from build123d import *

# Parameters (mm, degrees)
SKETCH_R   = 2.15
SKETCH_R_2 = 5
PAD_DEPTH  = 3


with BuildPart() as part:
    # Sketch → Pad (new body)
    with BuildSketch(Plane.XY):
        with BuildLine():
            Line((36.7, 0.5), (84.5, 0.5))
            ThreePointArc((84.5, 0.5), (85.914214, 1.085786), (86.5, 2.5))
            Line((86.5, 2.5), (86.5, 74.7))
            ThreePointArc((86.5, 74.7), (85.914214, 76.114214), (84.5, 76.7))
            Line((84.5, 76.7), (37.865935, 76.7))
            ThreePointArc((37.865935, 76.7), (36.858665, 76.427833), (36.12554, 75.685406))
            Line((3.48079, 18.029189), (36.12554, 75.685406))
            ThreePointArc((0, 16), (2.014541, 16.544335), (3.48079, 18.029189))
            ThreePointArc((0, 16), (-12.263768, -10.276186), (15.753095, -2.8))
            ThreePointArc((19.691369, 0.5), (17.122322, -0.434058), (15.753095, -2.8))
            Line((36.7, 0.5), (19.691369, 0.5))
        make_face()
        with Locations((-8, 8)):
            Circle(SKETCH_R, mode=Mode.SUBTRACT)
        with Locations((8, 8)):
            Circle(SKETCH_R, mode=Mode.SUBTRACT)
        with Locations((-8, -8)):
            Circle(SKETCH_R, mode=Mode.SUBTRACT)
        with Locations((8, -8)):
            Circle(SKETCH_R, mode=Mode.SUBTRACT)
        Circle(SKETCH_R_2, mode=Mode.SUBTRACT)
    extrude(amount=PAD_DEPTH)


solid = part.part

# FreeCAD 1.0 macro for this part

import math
import FreeCAD as App
import Part
import Sketcher
from FreeCAD import Vector
Q = App.Units.Quantity

doc = App.newDocument("Part")
params = doc.addObject("Spreadsheet::Sheet", "Params")
for row, (alias, value) in enumerate([
    ("sketch1_diameter", "10 mm"),
    ("sketch1_radius", "1.999999 mm"),
    ("sketch1_radius2", "4.000001 mm"),
    ("sketch1_radius3", "16 mm"),
    ("sketch1_diameter2", "4.3 mm"),
    ("pad1_length", "3 mm"),
], start=1):
    params.set(f"A{row}", alias)
    params.set(f"B{row}", "=" + value)
    params.setAlias(f"B{row}", alias)

body = doc.addObject("PartDesign::Body", "Body")

# Sketch on XY plane
sketch1 = body.newObject("Sketcher::SketchObject", "Sketch")
sketch1.AttachmentSupport = (doc.getObject("XY_Plane"), [""])
sketch1.MapMode = "FlatFace"
sketch1.addGeometry([
    Part.ArcOfCircle(Part.Circle(Vector(84.5, 2.5, 0), Vector(0, 0, 1), 2), math.radians(-90), math.radians(0)),  # 0
    Part.LineSegment(Vector(86.5, 2.5, 0), Vector(86.5, 74.7, 0)),  # 1
    Part.ArcOfCircle(Part.Circle(Vector(84.5, 74.7, 0), Vector(0, 0, 1), 2), math.radians(0), math.radians(90)),  # 2
    Part.LineSegment(Vector(84.5, 76.7, 0), Vector(37.9, 76.7, 0)),  # 3
    Part.ArcOfCircle(Part.Circle(Vector(37.9, 74.7, 0), Vector(0, 0, 1), 2), math.radians(90), math.radians(150)),  # 4
    Part.LineSegment(Vector(36.1, 75.7, 0), Vector(3.5, 18, 0)),  # 5
    Part.ArcOfCircle(Part.Circle(Vector(0, 20, 0), Vector(0, 0, 1), 4), math.radians(-90), math.radians(-30)),  # 6
    Part.ArcOfCircle(Part.Circle(Vector(0, 0, 0), Vector(0, 0, 1), 16), math.radians(90), math.radians(350)),  # 7
    Part.ArcOfCircle(Part.Circle(Vector(19.7, -3.5, 0), Vector(0, 0, 1), 4), math.radians(90), math.radians(170)),  # 8
    Part.LineSegment(Vector(19.7, 0.5, 0), Vector(84.5, 0.5, 0)),  # 9
    Part.Circle(Vector(-8, -8, 0), Vector(0, 0, 1), 2.1),  # 10
    Part.Circle(Vector(8, -8, 0), Vector(0, 0, 1), 2.1),  # 11
    Part.Circle(Vector(-8, 8, 0), Vector(0, 0, 1), 2.1),  # 12
    Part.Circle(Vector(0, 0, 0), Vector(0, 0, 1), 5),  # 13
    Part.Circle(Vector(8, 8, 0), Vector(0, 0, 1), 2.1),  # 14
], False)
sketch1.addConstraint([
    Sketcher.Constraint("Tangent", 0, 2, 1, 1),
    Sketcher.Constraint("Tangent", 1, 2, 2, 1),
    Sketcher.Constraint("Tangent", 2, 2, 3, 1),
    Sketcher.Constraint("Tangent", 3, 2, 4, 1),
    Sketcher.Constraint("Tangent", 4, 2, 5, 1),
    Sketcher.Constraint("Tangent", 5, 2, 6, 2),
    Sketcher.Constraint("Tangent", 6, 1, 7, 1),
    Sketcher.Constraint("Tangent", 7, 2, 8, 2),
    Sketcher.Constraint("Tangent", 8, 1, 9, 1),
    Sketcher.Constraint("Tangent", 9, 2, 0, 1),
    Sketcher.Constraint("Vertical", 1),
    Sketcher.Constraint("Horizontal", 3),
    Sketcher.Constraint("Horizontal", 9),
    Sketcher.Constraint("Coincident", 7, 3, -1, 1),
    Sketcher.Constraint("Coincident", 13, 3, -1, 1),
    Sketcher.Constraint("Equal", 0, 2),
    Sketcher.Constraint("Equal", 2, 4),
    Sketcher.Constraint("Equal", 6, 8),
    Sketcher.Constraint("Equal", 10, 11),
    Sketcher.Constraint("Equal", 11, 12),
    Sketcher.Constraint("Equal", 12, 14),
    Sketcher.Constraint("Symmetric", 11, 3, 12, 3, -1, 1),
    Sketcher.Constraint("Symmetric", 10, 3, 14, 3, -1, 1),
    Sketcher.Constraint("Symmetric", 10, 3, 11, 3, -2),
    Sketcher.Constraint("PointOnObject", 6, 3, -2),
    Sketcher.Constraint("Diameter", 13, Q("10 mm")),
    Sketcher.Constraint("Radius", 0, Q("1.999999 mm")),
    Sketcher.Constraint("Radius", 6, Q("4.000001 mm")),
    Sketcher.Constraint("Radius", 7, Q("16 mm")),
    Sketcher.Constraint("Diameter", 10, Q("4.3 mm")),
    Sketcher.Constraint("DistanceY", 1, 1, 1, 2, Q("72.2 mm")),
    Sketcher.Constraint("DistanceX", 10, 3, -1, 1, Q("8 mm")),
    Sketcher.Constraint("DistanceY", 10, 3, -1, 1, Q("8 mm")),
    Sketcher.Constraint("DistanceX", -1, 1, 0, 3, Q("84.500001 mm")),
    Sketcher.Constraint("DistanceY", -1, 1, 0, 3, Q("2.499999 mm")),
    Sketcher.Constraint("DistanceX", 3, 2, 3, 1, Q("46.634065 mm")),
])
sketch1.setExpression("Constraints[25]", "Params.sketch1_diameter")
sketch1.setExpression("Constraints[26]", "Params.sketch1_radius")
sketch1.setExpression("Constraints[27]", "Params.sketch1_radius2")
sketch1.setExpression("Constraints[28]", "Params.sketch1_radius3")
sketch1.setExpression("Constraints[29]", "Params.sketch1_diameter2")
pad1 = body.newObject("PartDesign::Pad", "Pad")
pad1.Profile = sketch1
pad1.setExpression("Length", "Params.pad1_length")

doc.recompute()
